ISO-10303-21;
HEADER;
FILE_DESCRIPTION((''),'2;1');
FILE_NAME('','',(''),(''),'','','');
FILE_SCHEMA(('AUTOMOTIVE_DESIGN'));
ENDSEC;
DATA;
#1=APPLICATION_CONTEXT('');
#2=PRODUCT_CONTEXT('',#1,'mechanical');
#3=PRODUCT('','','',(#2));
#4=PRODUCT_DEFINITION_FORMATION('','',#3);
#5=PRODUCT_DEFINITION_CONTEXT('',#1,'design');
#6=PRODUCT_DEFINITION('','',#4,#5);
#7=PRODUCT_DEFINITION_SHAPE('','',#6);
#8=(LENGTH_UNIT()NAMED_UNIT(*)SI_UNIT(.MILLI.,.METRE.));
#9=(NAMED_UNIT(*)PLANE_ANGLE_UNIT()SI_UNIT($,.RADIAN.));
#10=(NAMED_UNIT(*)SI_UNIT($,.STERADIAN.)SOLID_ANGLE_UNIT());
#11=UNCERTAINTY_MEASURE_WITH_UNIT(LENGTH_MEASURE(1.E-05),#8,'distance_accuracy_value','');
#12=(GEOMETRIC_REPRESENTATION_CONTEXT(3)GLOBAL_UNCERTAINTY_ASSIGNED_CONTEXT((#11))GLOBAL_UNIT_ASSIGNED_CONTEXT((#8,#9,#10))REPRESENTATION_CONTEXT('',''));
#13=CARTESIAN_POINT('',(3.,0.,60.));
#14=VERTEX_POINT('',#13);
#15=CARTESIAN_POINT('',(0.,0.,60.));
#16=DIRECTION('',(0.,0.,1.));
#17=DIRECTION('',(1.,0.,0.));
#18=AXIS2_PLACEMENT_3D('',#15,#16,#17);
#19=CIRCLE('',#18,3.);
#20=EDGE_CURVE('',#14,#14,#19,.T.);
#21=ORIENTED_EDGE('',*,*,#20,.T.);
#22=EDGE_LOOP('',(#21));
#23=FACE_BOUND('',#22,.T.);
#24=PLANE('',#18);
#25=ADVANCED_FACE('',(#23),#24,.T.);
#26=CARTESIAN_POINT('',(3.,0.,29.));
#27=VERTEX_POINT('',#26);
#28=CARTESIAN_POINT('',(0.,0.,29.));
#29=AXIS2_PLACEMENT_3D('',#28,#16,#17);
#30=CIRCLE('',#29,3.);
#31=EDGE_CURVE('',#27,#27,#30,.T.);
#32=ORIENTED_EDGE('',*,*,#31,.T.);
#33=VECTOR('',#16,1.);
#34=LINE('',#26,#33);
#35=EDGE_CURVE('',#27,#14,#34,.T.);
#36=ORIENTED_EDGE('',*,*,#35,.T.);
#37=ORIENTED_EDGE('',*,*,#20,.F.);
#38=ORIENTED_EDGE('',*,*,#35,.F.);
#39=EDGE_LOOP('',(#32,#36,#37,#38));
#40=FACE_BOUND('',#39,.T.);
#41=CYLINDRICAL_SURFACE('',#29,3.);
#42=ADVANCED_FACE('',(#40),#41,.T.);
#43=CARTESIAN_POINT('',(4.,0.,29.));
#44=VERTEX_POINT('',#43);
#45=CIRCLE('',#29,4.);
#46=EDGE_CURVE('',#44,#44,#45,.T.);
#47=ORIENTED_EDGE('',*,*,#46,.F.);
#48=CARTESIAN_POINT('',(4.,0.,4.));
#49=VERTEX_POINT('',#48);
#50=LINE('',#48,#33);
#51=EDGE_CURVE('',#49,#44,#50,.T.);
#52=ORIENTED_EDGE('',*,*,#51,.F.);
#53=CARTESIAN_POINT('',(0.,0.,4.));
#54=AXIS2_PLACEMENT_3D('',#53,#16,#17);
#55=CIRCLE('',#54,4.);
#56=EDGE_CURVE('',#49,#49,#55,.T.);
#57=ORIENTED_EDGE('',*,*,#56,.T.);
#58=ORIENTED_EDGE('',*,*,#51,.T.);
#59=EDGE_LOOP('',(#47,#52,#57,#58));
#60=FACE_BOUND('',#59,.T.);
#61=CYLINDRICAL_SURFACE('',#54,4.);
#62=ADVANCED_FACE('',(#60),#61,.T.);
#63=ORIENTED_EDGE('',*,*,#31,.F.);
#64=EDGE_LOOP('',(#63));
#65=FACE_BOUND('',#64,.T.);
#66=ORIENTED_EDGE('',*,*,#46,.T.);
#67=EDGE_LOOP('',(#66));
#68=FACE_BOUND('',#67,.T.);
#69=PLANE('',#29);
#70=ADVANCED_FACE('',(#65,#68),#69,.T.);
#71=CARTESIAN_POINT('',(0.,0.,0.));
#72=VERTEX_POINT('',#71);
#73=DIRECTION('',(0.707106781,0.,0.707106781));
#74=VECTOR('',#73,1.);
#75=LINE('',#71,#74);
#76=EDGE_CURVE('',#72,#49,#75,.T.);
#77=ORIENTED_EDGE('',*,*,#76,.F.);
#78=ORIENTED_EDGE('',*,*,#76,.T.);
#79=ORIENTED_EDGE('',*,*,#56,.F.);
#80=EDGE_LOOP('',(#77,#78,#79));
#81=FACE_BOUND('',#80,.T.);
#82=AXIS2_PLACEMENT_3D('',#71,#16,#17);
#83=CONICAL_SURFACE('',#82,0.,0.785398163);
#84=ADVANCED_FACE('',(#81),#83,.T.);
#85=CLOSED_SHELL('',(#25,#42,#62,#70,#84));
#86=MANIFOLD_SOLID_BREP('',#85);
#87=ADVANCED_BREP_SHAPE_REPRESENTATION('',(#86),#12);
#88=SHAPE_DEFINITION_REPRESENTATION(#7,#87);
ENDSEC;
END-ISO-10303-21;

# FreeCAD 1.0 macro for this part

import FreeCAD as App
import Part
import Sketcher
from FreeCAD import Vector
Q = App.Units.Quantity


def add_polygon(sketch, points):
    """Adds a closed chain of lines whose ends are joined by coincident constraints."""
    first, n = sketch.GeometryCount, len(points)
    for a, b in zip(points, points[1:] + points[:1]):
        sketch.addGeometry(Part.LineSegment(App.Vector(*a, 0), App.Vector(*b, 0)), False)
    for i in range(n):
        sketch.addConstraint(Sketcher.Constraint("Coincident", first + i, 2, first + (i + 1) % n, 1))

doc = App.newDocument("Part")
params = doc.addObject("Spreadsheet::Sheet", "Params")
for row, (alias, value) in enumerate([
    ("sketch1_width", "1 mm"),
    ("sketch1_width2", "3 mm"),
    ("sketch1_height", "25 mm"),
    ("sketch1_height2", "31 mm"),
    ("sketch1_height3", "60 mm"),
    ("revolution_angle", "360 deg"),
], start=1):
    params.set(f"A{row}", alias)
    params.set(f"B{row}", "=" + value)
    params.setAlias(f"B{row}", alias)

body = doc.addObject("PartDesign::Body", "Body")

# Sketch on XZ plane
sketch1 = doc.addObject("Sketcher::SketchObject", "Sketch")
body.addObject(sketch1)
sketch1.AttachmentSupport = (doc.XZ_Plane, [""])
sketch1.MapMode = "FlatFace"
add_polygon(sketch1, [(0, 0), (4, 4), (4, 29), (3, 29), (3, 60), (0, 60)])  # lines 0-5
sketch1.addConstraint([
    Sketcher.Constraint("Vertical", 1),
    Sketcher.Constraint("Horizontal", 2),
    Sketcher.Constraint("Vertical", 3),
    Sketcher.Constraint("Horizontal", 4),
    Sketcher.Constraint("Vertical", 5),
    Sketcher.Constraint("Coincident", 5, 2, -1, 1),
    Sketcher.Constraint("DistanceX", 2, 2, 2, 1, Q("1 mm")),
    Sketcher.Constraint("DistanceX", 4, 2, 4, 1, Q("3 mm")),
    Sketcher.Constraint("DistanceY", 1, 1, 1, 2, Q("25 mm")),
    Sketcher.Constraint("DistanceY", 3, 1, 3, 2, Q("31 mm")),
    Sketcher.Constraint("DistanceY", 5, 2, 5, 1, Q("60 mm")),
])
sketch1.setExpression("Constraints[12]", "Params.sketch1_width")
sketch1.setExpression("Constraints[13]", "Params.sketch1_width2")
sketch1.setExpression("Constraints[14]", "Params.sketch1_height")
sketch1.setExpression("Constraints[15]", "Params.sketch1_height2")
sketch1.setExpression("Constraints[16]", "Params.sketch1_height3")
revolution = doc.addObject("PartDesign::Revolution", "Revolution")
body.addObject(revolution)
revolution.Profile = sketch1
revolution.ReferenceAxis = (sketch1, ["V_Axis"])
revolution.setExpression("Angle", "Params.revolution_angle")

doc.recompute()
